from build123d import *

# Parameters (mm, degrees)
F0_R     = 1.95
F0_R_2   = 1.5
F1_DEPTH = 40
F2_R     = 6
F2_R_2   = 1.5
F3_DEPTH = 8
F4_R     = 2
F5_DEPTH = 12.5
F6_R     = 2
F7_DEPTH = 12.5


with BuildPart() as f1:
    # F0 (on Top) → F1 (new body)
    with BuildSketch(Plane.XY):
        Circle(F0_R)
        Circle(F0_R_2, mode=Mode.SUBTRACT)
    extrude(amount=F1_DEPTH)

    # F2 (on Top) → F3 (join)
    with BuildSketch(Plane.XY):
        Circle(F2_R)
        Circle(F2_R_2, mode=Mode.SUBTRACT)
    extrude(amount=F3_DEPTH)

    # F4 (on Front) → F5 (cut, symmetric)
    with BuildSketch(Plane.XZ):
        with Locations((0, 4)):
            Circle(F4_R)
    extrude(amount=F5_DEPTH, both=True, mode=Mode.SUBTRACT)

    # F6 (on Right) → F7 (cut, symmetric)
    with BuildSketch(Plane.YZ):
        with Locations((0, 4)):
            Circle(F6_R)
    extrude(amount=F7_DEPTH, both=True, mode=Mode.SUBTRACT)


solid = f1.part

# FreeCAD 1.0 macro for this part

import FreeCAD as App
import Part
import Sketcher
Q = App.Units.Quantity

doc = App.newDocument("Part")
body = doc.addObject("PartDesign::Body", "Body")

# Sketch on XY plane
sketch1 = body.newObject("Sketcher::SketchObject", "Sketch")
sketch1.AttachmentSupport = (doc.getObject("XY_Plane"), [""])
sketch1.MapMode = "FlatFace"
sketch1.addGeometry([
    Part.Circle(App.Vector(0, 0, 0), App.Vector(0, 0, 1), 1.9),
    Part.Circle(App.Vector(0, 0, 0), App.Vector(0, 0, 1), 1.5),
], False)
sketch1.addConstraint([
    Sketcher.Constraint("Coincident", 0, 3, -1, 1),
    Sketcher.Constraint("Coincident", 1, 3, -1, 1),
    Sketcher.Constraint("Diameter", 1, Q("3 mm")),
    Sketcher.Constraint("Diameter", 0, Q("3.9 mm")),
])
pad1 = body.newObject("PartDesign::Pad", "Pad")
pad1.Profile = sketch1
pad1.Length = 40

# Sketch on XY plane
sketch2 = body.newObject("Sketcher::SketchObject", "Sketch001")
sketch2.AttachmentSupport = (doc.getObject("XY_Plane"), [""])
sketch2.MapMode = "FlatFace"
sketch2.addGeometry([
    Part.Circle(App.Vector(0, 0, 0), App.Vector(0, 0, 1), 6),
    Part.Circle(App.Vector(0, 0, 0), App.Vector(0, 0, 1), 1.5),
], False)
sketch2.addConstraint([
    Sketcher.Constraint("Coincident", 0, 3, -1, 1),
    Sketcher.Constraint("Coincident", 1, 3, -1, 1),
    Sketcher.Constraint("Diameter", 0, Q("12 mm")),
    Sketcher.Constraint("Diameter", 1, Q("3 mm")),
])
pad2 = body.newObject("PartDesign::Pad", "Pad001")
pad2.Profile = sketch2
pad2.Length = 8

# Sketch on XZ plane
sketch3 = body.newObject("Sketcher::SketchObject", "Sketch002")
sketch3.AttachmentSupport = (doc.getObject("XZ_Plane"), [""])
sketch3.MapMode = "FlatFace"
sketch3.addGeometry(Part.Circle(App.Vector(0, 4, 0), App.Vector(0, 0, 1), 2), False)
sketch3.addConstraint([
    Sketcher.Constraint("PointOnObject", 0, 3, -2),
    Sketcher.Constraint("Diameter", 0, Q("4 mm")),
    Sketcher.Constraint("DistanceY", -1, 1, 0, 3, Q("4 mm")),
])
pocket1 = body.newObject("PartDesign::Pocket", "Pocket")
pocket1.Profile = sketch3
pocket1.Length = 25
pocket1.Midplane = True

# Sketch on YZ plane
sketch4 = body.newObject("Sketcher::SketchObject", "Sketch003")
sketch4.AttachmentSupport = (doc.getObject("YZ_Plane"), [""])
sketch4.MapMode = "FlatFace"
sketch4.addGeometry(Part.Circle(App.Vector(0, 4, 0), App.Vector(0, 0, 1), 2), False)
sketch4.addConstraint([
    Sketcher.Constraint("PointOnObject", 0, 3, -2),
    Sketcher.Constraint("Diameter", 0, Q("4 mm")),
    Sketcher.Constraint("DistanceY", -1, 1, 0, 3, Q("4 mm")),
])
pocket2 = body.newObject("PartDesign::Pocket", "Pocket001")
pocket2.Profile = sketch4
pocket2.Length = 25
pocket2.Midplane = True

doc.recompute()
